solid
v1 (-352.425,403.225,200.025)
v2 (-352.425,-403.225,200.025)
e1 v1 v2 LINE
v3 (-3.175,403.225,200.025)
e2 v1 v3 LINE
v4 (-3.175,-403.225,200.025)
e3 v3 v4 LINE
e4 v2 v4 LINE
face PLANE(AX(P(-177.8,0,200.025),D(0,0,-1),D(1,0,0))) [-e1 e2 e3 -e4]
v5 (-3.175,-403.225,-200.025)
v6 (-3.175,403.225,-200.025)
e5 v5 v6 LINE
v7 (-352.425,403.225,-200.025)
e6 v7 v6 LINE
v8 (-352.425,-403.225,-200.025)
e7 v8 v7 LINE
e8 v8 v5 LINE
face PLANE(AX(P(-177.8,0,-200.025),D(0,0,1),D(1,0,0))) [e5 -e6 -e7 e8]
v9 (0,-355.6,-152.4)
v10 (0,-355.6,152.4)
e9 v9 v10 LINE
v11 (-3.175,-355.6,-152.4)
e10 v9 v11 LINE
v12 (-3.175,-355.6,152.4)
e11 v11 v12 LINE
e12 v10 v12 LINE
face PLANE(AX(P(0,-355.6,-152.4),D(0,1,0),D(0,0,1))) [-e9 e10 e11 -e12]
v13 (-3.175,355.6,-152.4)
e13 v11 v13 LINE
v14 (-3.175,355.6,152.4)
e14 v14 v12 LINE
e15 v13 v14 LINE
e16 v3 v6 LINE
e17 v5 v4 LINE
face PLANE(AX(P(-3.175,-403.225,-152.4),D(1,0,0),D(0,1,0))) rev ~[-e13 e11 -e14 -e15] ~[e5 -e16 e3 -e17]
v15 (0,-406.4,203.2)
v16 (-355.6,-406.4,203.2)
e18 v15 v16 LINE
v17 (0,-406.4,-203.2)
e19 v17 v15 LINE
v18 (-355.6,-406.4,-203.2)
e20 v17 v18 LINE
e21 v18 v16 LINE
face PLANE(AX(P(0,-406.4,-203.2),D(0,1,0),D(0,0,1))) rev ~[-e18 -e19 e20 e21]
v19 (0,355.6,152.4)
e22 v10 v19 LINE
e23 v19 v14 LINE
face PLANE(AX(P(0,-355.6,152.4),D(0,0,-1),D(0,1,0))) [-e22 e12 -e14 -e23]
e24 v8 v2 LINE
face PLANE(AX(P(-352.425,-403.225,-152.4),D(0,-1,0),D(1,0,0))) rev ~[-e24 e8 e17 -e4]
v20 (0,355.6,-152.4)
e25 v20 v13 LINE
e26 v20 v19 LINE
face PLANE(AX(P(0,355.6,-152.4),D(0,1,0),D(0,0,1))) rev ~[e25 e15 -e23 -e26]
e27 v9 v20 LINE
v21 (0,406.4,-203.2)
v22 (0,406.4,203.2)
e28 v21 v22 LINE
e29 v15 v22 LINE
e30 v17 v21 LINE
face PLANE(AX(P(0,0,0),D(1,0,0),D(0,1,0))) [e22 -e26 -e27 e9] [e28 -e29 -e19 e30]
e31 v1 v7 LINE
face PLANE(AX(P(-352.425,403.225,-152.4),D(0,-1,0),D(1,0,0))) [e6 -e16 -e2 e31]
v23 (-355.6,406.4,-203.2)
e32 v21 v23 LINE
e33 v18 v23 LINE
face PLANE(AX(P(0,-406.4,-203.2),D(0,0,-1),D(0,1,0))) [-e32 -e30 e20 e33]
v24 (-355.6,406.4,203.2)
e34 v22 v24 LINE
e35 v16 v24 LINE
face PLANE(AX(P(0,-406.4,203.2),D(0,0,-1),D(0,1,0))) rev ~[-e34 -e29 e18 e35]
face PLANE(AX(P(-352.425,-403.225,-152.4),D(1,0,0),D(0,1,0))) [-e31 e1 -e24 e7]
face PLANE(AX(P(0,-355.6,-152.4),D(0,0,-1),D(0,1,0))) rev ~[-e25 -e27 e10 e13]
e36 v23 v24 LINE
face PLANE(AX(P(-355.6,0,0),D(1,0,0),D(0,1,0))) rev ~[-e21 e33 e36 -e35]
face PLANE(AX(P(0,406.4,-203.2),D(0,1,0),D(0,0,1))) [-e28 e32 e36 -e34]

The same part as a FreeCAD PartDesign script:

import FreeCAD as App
import Part
import Sketcher
Q = App.Units.Quantity


def add_polygon(sketch, points):
    """Adds a closed chain of lines whose ends are joined by coincident constraints."""
    first, n = sketch.GeometryCount, len(points)
    for a, b in zip(points, points[1:] + points[:1]):
        sketch.addGeometry(Part.LineSegment(App.Vector(*a, 0), App.Vector(*b, 0)), False)
    for i in range(n):
        sketch.addConstraint(Sketcher.Constraint("Coincident", first + i, 2, first + (i + 1) % n, 1))

doc = App.newDocument("Part")
body = doc.addObject("PartDesign::Body", "Body")

# Sketch on YZ plane
sketch1 = body.newObject("Sketcher::SketchObject", "Sketch")
sketch1.AttachmentSupport = (doc.getObject("YZ_Plane"), [""])
sketch1.MapMode = "FlatFace"
add_polygon(sketch1, [(-406, 203), (-406, -203), (406, -203), (406, 203)])  # lines 0-3
sketch1.addConstraint(Sketcher.Constraint("Vertical", 0))
sketch1.addConstraint(Sketcher.Constraint("Horizontal", 1))
sketch1.addConstraint(Sketcher.Constraint("Vertical", 2))
sketch1.addConstraint(Sketcher.Constraint("Horizontal", 3))
sketch1.addConstraint(Sketcher.Constraint("Symmetric", 0, 2, 2, 2, -1, 1))
sketch1.addConstraint(Sketcher.Constraint("DistanceX", 1, 1, 1, 2, Q("32 in")))
sketch1.addConstraint(Sketcher.Constraint("DistanceY", 0, 2, 0, 1, Q("16 in")))
pad1 = body.newObject("PartDesign::Pad", "Pad")
pad1.Profile = sketch1
pad1.Length = Q("14 in")
pad1.Reversed = True

# Sketch on YZ plane
sketch2 = body.newObject("Sketcher::SketchObject", "Sketch001")
sketch2.AttachmentSupport = (doc.getObject("YZ_Plane"), [""])
sketch2.MapMode = "FlatFace"
add_polygon(sketch2, [(-356, 152), (-356, -152), (356, -152), (356, 152)])  # lines 0-3
sketch2.addConstraint(Sketcher.Constraint("Vertical", 0))
sketch2.addConstraint(Sketcher.Constraint("Horizontal", 1))
sketch2.addConstraint(Sketcher.Constraint("Vertical", 2))
sketch2.addConstraint(Sketcher.Constraint("Horizontal", 3))
sketch2.addConstraint(Sketcher.Constraint("Symmetric", 0, 2, 2, 2, -1, 1))
sketch2.addConstraint(Sketcher.Constraint("DistanceX", 1, 1, 1, 2, Q("28 in")))
sketch2.addConstraint(Sketcher.Constraint("DistanceY", 0, 2, 0, 1, Q("12 in")))
pocket1 = body.newObject("PartDesign::Pocket", "Pocket")
pocket1.Profile = sketch2
pocket1.Length = Q("13.875 in")

# Sketch on XZ plane
sketch3 = body.newObject("Sketcher::SketchObject", "Sketch002")
sketch3.AttachmentSupport = (doc.getObject("XZ_Plane"), [""])
sketch3.MapMode = "FlatFace"
sketch3.AttachmentOffset = App.Placement(App.Vector(0, 0, 14 * 25.4), App.Rotation())
add_polygon(sketch3, [(-3, 152), (-3, -152), (-352, -152), (-352, 152)])  # lines 0-3
sketch3.addConstraint(Sketcher.Constraint("Vertical", 0))
sketch3.addConstraint(Sketcher.Constraint("Horizontal", 1))
sketch3.addConstraint(Sketcher.Constraint("Vertical", 2))
sketch3.addConstraint(Sketcher.Constraint("Horizontal", 3))
sketch3.addConstraint(Sketcher.Constraint("DistanceY", 0, 2, 0, 1, Q("12 in")))
sketch3.addConstraint(Sketcher.Constraint("DistanceY", 0, 2, -1, 1, Q("6 in")))
sketch3.addConstraint(Sketcher.Constraint("DistanceX", 1, 2, 1, 1, Q("13.75 in")))
sketch3.addConstraint(Sketcher.Constraint("DistanceX", 0, 2, -1, 1, Q("0.125 in")))
pocket2 = body.newObject("PartDesign::Pocket", "Pocket001")
pocket2.Profile = sketch3
pocket2.Length = Q("1.875 in")
pocket2.Reversed = True

# Sketch on XZ plane
sketch4 = body.newObject("Sketcher::SketchObject", "Sketch003")
sketch4.AttachmentSupport = (doc.getObject("XZ_Plane"), [""])
sketch4.MapMode = "FlatFace"
sketch4.AttachmentOffset = App.Placement(App.Vector(0, 0, -14 * 25.4), App.Rotation())
add_polygon(sketch4, [(-352, 152), (-352, -152), (-3, -152), (-3, 152)])  # lines 0-3
sketch4.addConstraint(Sketcher.Constraint("Vertical", 0))
sketch4.addConstraint(Sketcher.Constraint("Horizontal", 1))
sketch4.addConstraint(Sketcher.Constraint("Vertical", 2))
sketch4.addConstraint(Sketcher.Constraint("Horizontal", 3))
sketch4.addConstraint(Sketcher.Constraint("DistanceY", 0, 2, 0, 1, Q("12 in")))
sketch4.addConstraint(Sketcher.Constraint("DistanceY", 0, 2, -1, 1, Q("6 in")))
sketch4.addConstraint(Sketcher.Constraint("DistanceX", 1, 1, 1, 2, Q("13.75 in")))
sketch4.addConstraint(Sketcher.Constraint("DistanceX", 0, 2, -1, 1, Q("13.875 in")))
pocket3 = body.newObject("PartDesign::Pocket", "Pocket002")
pocket3.Profile = sketch4
pocket3.Length = Q("1.875 in")

# Sketch on XY plane
sketch5 = body.newObject("Sketcher::SketchObject", "Sketch004")
sketch5.AttachmentSupport = (doc.getObject("XY_Plane"), [""])
sketch5.MapMode = "FlatFace"
sketch5.AttachmentOffset = App.Placement(App.Vector(0, 0, 6 * 25.4), App.Rotation())
add_polygon(sketch5, [(-352, -403), (-352, 403), (-3, 403), (-3, -403)])  # lines 0-3
sketch5.addConstraint(Sketcher.Constraint("Vertical", 0))
sketch5.addConstraint(Sketcher.Constraint("Horizontal", 1))
sketch5.addConstraint(Sketcher.Constraint("Vertical", 2))
sketch5.addConstraint(Sketcher.Constraint("Horizontal", 3))
sketch5.addConstraint(Sketcher.Constraint("DistanceX", 1, 1, 1, 2, Q("13.75 in")))
sketch5.addConstraint(Sketcher.Constraint("DistanceY", 0, 1, 0, 2, Q("31.75 in")))
sketch5.addConstraint(Sketcher.Constraint("DistanceX", 0, 2, -1, 1, Q("13.875 in")))
sketch5.addConstraint(Sketcher.Constraint("DistanceY", -1, 1, 0, 2, Q("15.875 in")))
pocket4 = body.newObject("PartDesign::Pocket", "Pocket003")
pocket4.Profile = sketch5
pocket4.Length = Q("1.875 in")
pocket4.Reversed = True

# Sketch on XY plane
sketch6 = body.newObject("Sketcher::SketchObject", "Sketch005")
sketch6.AttachmentSupport = (doc.getObject("XY_Plane"), [""])
sketch6.MapMode = "FlatFace"
sketch6.AttachmentOffset = App.Placement(App.Vector(0, 0, -6 * 25.4), App.Rotation())
add_polygon(sketch6, [(-352, 403), (-352, -403), (-3, -403), (-3, 403)])  # lines 0-3
sketch6.addConstraint(Sketcher.Constraint("Vertical", 0))
sketch6.addConstraint(Sketcher.Constraint("Horizontal", 1))
sketch6.addConstraint(Sketcher.Constraint("Vertical", 2))
sketch6.addConstraint(Sketcher.Constraint("Horizontal", 3))
sketch6.addConstraint(Sketcher.Constraint("DistanceX", 1, 1, 1, 2, Q("13.75 in")))
sketch6.addConstraint(Sketcher.Constraint("DistanceY", 0, 2, 0, 1, Q("31.75 in")))
sketch6.addConstraint(Sketcher.Constraint("DistanceX", 0, 2, -1, 1, Q("13.875 in")))
sketch6.addConstraint(Sketcher.Constraint("DistanceY", 0, 2, -1, 1, Q("15.875 in")))
pocket5 = body.newObject("PartDesign::Pocket", "Pocket004")
pocket5.Profile = sketch6
pocket5.Length = Q("1.875 in")

doc.recompute()
